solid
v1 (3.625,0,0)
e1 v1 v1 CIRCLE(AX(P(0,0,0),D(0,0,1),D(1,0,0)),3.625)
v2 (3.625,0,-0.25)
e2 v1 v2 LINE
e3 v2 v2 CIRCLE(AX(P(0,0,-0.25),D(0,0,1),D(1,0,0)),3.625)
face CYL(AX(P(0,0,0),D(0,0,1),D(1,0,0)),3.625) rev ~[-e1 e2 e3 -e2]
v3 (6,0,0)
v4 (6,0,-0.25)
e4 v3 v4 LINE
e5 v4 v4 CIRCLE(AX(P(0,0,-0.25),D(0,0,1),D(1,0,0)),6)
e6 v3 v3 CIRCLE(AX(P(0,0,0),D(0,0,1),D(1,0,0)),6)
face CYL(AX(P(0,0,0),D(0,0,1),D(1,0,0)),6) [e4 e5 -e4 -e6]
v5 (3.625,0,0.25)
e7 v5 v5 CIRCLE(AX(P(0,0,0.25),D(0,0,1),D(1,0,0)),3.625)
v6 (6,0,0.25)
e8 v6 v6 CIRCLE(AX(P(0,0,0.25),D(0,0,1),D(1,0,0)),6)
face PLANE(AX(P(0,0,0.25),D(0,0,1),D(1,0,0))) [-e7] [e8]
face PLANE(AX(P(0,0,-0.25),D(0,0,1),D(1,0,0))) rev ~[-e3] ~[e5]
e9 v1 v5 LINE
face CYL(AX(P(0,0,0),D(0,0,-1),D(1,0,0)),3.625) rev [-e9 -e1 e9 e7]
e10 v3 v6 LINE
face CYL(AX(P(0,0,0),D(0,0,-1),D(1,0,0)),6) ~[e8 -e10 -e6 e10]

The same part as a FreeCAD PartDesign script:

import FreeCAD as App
import Part
import Sketcher
from FreeCAD import Vector
Q = App.Units.Quantity

doc = App.newDocument("Part")
body = doc.addObject("PartDesign::Body", "Body")

sketch1 = doc.addObject("Sketcher::SketchObject", "Sketch")
body.addObject(sketch1)
sketch1.AttachmentSupport = (doc.XY_Plane, [""])
sketch1.MapMode = "FlatFace"
sketch1.addGeometry([
    Part.Circle(Vector(0, 0, 0), Vector(0, 0, 1), 6),
    Part.Circle(Vector(0, 0, 0), Vector(0, 0, 1), 3.6),
], False)
sketch1.addConstraint([
    Sketcher.Constraint("Coincident", 0, 3, -1, 1),
    Sketcher.Constraint("Coincident", 1, 3, -1, 1),
    Sketcher.Constraint("Diameter", 0, Q("12 mm")),
    Sketcher.Constraint("Diameter", 1, Q("7.25 mm")),
])
pad1 = doc.addObject("PartDesign::Pad", "Pad")
body.addObject(pad1)
pad1.Profile = sketch1
pad1.Length = 0.5
pad1.Midplane = True

doc.recompute()
